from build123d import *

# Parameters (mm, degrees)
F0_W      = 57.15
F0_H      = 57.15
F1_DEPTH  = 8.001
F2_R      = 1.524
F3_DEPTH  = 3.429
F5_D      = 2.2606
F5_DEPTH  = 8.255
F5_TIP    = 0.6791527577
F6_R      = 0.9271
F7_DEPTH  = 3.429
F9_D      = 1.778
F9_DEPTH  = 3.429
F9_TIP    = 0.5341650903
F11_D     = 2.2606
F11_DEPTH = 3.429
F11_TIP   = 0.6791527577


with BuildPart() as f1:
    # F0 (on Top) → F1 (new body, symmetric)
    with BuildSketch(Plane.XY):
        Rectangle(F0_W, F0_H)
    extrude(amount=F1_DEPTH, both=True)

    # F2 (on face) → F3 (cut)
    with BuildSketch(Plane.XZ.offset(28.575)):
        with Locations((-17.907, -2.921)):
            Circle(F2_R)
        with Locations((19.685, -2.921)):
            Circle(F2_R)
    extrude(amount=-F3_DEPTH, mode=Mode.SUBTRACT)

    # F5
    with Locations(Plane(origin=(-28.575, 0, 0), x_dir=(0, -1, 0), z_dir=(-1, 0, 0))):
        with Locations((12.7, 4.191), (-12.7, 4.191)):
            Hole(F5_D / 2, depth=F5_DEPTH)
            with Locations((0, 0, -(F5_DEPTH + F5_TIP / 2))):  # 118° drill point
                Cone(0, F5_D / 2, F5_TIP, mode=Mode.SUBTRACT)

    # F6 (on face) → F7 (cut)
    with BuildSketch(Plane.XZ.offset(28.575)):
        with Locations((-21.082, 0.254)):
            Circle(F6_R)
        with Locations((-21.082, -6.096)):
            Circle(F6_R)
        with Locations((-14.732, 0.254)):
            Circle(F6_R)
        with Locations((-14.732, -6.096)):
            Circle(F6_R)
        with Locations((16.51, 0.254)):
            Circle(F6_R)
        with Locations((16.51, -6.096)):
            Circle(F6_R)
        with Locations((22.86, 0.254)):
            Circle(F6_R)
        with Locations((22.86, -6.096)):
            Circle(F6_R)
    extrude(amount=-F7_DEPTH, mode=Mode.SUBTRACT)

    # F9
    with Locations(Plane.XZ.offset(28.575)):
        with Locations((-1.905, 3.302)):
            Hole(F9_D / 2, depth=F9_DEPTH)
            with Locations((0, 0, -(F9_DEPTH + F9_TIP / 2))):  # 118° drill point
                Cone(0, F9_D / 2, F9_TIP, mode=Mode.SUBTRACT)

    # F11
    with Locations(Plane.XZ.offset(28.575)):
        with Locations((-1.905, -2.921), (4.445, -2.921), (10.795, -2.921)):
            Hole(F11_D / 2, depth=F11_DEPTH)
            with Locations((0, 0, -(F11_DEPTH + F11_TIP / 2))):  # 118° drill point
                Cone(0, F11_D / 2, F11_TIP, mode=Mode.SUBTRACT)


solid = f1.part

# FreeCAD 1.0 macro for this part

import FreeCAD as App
import Part
import Sketcher
from FreeCAD import Vector
Q = App.Units.Quantity

doc = App.newDocument("Part")
body = doc.addObject("PartDesign::Body", "Body")

# Sketch on XY plane
sketch1 = body.newObject("Sketcher::SketchObject", "Sketch")
sketch1.AttachmentSupport = (doc.getObject("XY_Plane"), [""])
sketch1.MapMode = "FlatFace"
sketch1.addGeometry(Part.LineSegment(Vector(-29, 29, 0), Vector(-29, -29, 0)), False)
sketch1.addGeometry(Part.LineSegment(Vector(-29, -29, 0), Vector(29, -29, 0)), False)
sketch1.addGeometry(Part.LineSegment(Vector(29, -29, 0), Vector(29, 29, 0)), False)
sketch1.addGeometry(Part.LineSegment(Vector(29, 29, 0), Vector(-29, 29, 0)), False)
sketch1.addConstraint(Sketcher.Constraint("Coincident", 0, 2, 1, 1))
sketch1.addConstraint(Sketcher.Constraint("Coincident", 1, 2, 2, 1))
sketch1.addConstraint(Sketcher.Constraint("Coincident", 2, 2, 3, 1))
sketch1.addConstraint(Sketcher.Constraint("Coincident", 3, 2, 0, 1))
sketch1.addConstraint(Sketcher.Constraint("Vertical", 0))
sketch1.addConstraint(Sketcher.Constraint("Horizontal", 1))
sketch1.addConstraint(Sketcher.Constraint("Vertical", 2))
sketch1.addConstraint(Sketcher.Constraint("Horizontal", 3))
sketch1.addConstraint(Sketcher.Constraint("Symmetric", 0, 2, 2, 2, -1, 1))
sketch1.addConstraint(Sketcher.Constraint("Equal", 3, 0))
sketch1.addConstraint(Sketcher.Constraint("DistanceX", 1, 1, 1, 2, Q("2.25 in")))
pad1 = body.newObject("PartDesign::Pad", "Pad")
pad1.Profile = sketch1
pad1.Length = Q("0.63 in")
pad1.Midplane = True

# Sketch on XZ plane
sketch2 = body.newObject("Sketcher::SketchObject", "Sketch001")
sketch2.AttachmentSupport = (doc.getObject("XZ_Plane"), [""])
sketch2.MapMode = "FlatFace"
sketch2.AttachmentOffset = App.Placement(Vector(0, 0, 1.125 * 25.4), App.Rotation())
sketch2.addGeometry(Part.Circle(Vector(-17.9, -2.9, 0), Vector(0, 0, 1), 1.5), False)
sketch2.addGeometry(Part.Circle(Vector(19.7, -2.9, 0), Vector(0, 0, 1), 1.5), False)
sketch2.addConstraint(Sketcher.Constraint("Equal", 0, 1))
sketch2.addConstraint(Sketcher.Constraint("Horizontal", 0, 3, 1, 3))
sketch2.addConstraint(Sketcher.Constraint("Diameter", 0, Q("0.12 in")))
sketch2.addConstraint(Sketcher.Constraint("DistanceX", 0, 3, 1, 3, Q("1.48 in")))
sketch2.addConstraint(Sketcher.Constraint("DistanceX", 0, 3, -1, 1, Q("0.705 in")))
sketch2.addConstraint(Sketcher.Constraint("DistanceY", 0, 3, -1, 1, Q("0.115 in")))
pocket1 = body.newObject("PartDesign::Pocket", "Pocket")
pocket1.Profile = sketch2
pocket1.Length = Q("0.135 in")

# Sketch on YZ plane
sketch3 = body.newObject("Sketcher::SketchObject", "Sketch002")
sketch3.AttachmentSupport = (doc.getObject("YZ_Plane"), [""])
sketch3.MapMode = "FlatFace"
sketch3.AttachmentOffset = App.Placement(Vector(0, 0, -1.125 * 25.4), App.Rotation())
sketch3.addGeometry(Part.Circle(Vector(-12.7, 4.2, 0), Vector(0, 0, 1), 1.1), False)
sketch3.addGeometry(Part.Circle(Vector(12.7, 4.2, 0), Vector(0, 0, 1), 1.1), False)
sketch3.addConstraint(Sketcher.Constraint("Equal", 0, 1))
sketch3.addConstraint(Sketcher.Constraint("Symmetric", 0, 3, 1, 3, -2))
sketch3.addConstraint(Sketcher.Constraint("Diameter", 0, Q("0.089 in")))
sketch3.addConstraint(Sketcher.Constraint("DistanceX", 0, 3, 1, 3, Q("1 in")))
sketch3.addConstraint(Sketcher.Constraint("DistanceY", -1, 1, 0, 3, Q("0.165 in")))
doc.recompute()
hole = body.newObject("PartDesign::Hole", "Hole")
hole.Profile = sketch3
hole.ThreadType = "None"
hole.Diameter = Q("0.089 in")
hole.DepthType = "Dimension"
hole.Depth = Q("0.325 in")
hole.DrillPoint = "Angled"
hole.DrillPointAngle = 118
hole.Reversed = True

# Sketch on XZ plane
sketch4 = body.newObject("Sketcher::SketchObject", "Sketch003")
sketch4.AttachmentSupport = (doc.getObject("XZ_Plane"), [""])
sketch4.MapMode = "FlatFace"
sketch4.AttachmentOffset = App.Placement(Vector(0, 0, 1.125 * 25.4), App.Rotation())
sketch4.addGeometry(Part.Circle(Vector(-21.1, 0.3, 0), Vector(0, 0, 1), 0.9), False)
sketch4.addGeometry(Part.Circle(Vector(-21.1, -6.1, 0), Vector(0, 0, 1), 0.9), False)
sketch4.addGeometry(Part.Circle(Vector(-14.7, 0.3, 0), Vector(0, 0, 1), 0.9), False)
sketch4.addGeometry(Part.Circle(Vector(-14.7, -6.1, 0), Vector(0, 0, 1), 0.9), False)
sketch4.addGeometry(Part.Circle(Vector(16.5, 0.3, 0), Vector(0, 0, 1), 0.9), False)
sketch4.addGeometry(Part.Circle(Vector(16.5, -6.1, 0), Vector(0, 0, 1), 0.9), False)
sketch4.addGeometry(Part.Circle(Vector(22.9, 0.3, 0), Vector(0, 0, 1), 0.9), False)
sketch4.addGeometry(Part.Circle(Vector(22.9, -6.1, 0), Vector(0, 0, 1), 0.9), False)
sketch4.addConstraint(Sketcher.Constraint("Equal", 0, 1))
sketch4.addConstraint(Sketcher.Constraint("Equal", 1, 2))
sketch4.addConstraint(Sketcher.Constraint("Equal", 2, 3))
sketch4.addConstraint(Sketcher.Constraint("Equal", 3, 4))
sketch4.addConstraint(Sketcher.Constraint("Equal", 4, 5))
sketch4.addConstraint(Sketcher.Constraint("Equal", 5, 6))
sketch4.addConstraint(Sketcher.Constraint("Equal", 6, 7))
sketch4.addConstraint(Sketcher.Constraint("Horizontal", 0, 3, 2, 3))
sketch4.addConstraint(Sketcher.Constraint("Horizontal", 1, 3, 3, 3))
sketch4.addConstraint(Sketcher.Constraint("Horizontal", 2, 3, 4, 3))
sketch4.addConstraint(Sketcher.Constraint("Horizontal", 3, 3, 5, 3))
sketch4.addConstraint(Sketcher.Constraint("Horizontal", 4, 3, 6, 3))
sketch4.addConstraint(Sketcher.Constraint("Horizontal", 5, 3, 7, 3))
sketch4.addConstraint(Sketcher.Constraint("Vertical", 0, 3, 1, 3))
sketch4.addConstraint(Sketcher.Constraint("Vertical", 2, 3, 3, 3))
sketch4.addConstraint(Sketcher.Constraint("Vertical", 4, 3, 5, 3))
sketch4.addConstraint(Sketcher.Constraint("Vertical", 6, 3, 7, 3))
sketch4.addConstraint(Sketcher.Constraint("Diameter", 0, Q("0.073 in")))
sketch4.addConstraint(Sketcher.Constraint("DistanceX", -1, 1, 6, 3, Q("0.9 in")))
sketch4.addConstraint(Sketcher.Constraint("DistanceX", 0, 3, -1, 1, Q("0.83 in")))
sketch4.addConstraint(Sketcher.Constraint("DistanceY", -1, 1, 0, 3, Q("0.01 in")))
sketch4.addConstraint(Sketcher.Constraint("DistanceY", 1, 3, -1, 1, Q("0.24 in")))
sketch4.addConstraint(Sketcher.Constraint("DistanceX", 2, 3, -1, 1, Q("0.58 in")))
sketch4.addConstraint(Sketcher.Constraint("DistanceX", -1, 1, 4, 3, Q("0.65 in")))
pocket2 = body.newObject("PartDesign::Pocket", "Pocket001")
pocket2.Profile = sketch4
pocket2.Length = Q("0.135 in")

# Sketch on XZ plane
sketch5 = body.newObject("Sketcher::SketchObject", "Sketch004")
sketch5.AttachmentSupport = (doc.getObject("XZ_Plane"), [""])
sketch5.MapMode = "FlatFace"
sketch5.AttachmentOffset = App.Placement(Vector(0, 0, 1.125 * 25.4), App.Rotation())
sketch5.addGeometry(Part.Circle(Vector(-1.9, 3.3, 0), Vector(0, 0, 1), 0.9), False)
sketch5.addConstraint(Sketcher.Constraint("Diameter", 0, Q("0.07 in")))
sketch5.addConstraint(Sketcher.Constraint("DistanceY", -1, 1, 0, 3, Q("0.13 in")))
sketch5.addConstraint(Sketcher.Constraint("DistanceX", 0, 3, -1, 1, Q("0.075 in")))
doc.recompute()
hole2 = body.newObject("PartDesign::Hole", "Hole001")
hole2.Profile = sketch5
hole2.ThreadType = "None"
hole2.Diameter = Q("0.07 in")
hole2.DepthType = "Dimension"
hole2.Depth = Q("0.135 in")
hole2.DrillPoint = "Angled"
hole2.DrillPointAngle = 118

# Sketch on XZ plane
sketch6 = body.newObject("Sketcher::SketchObject", "Sketch005")
sketch6.AttachmentSupport = (doc.getObject("XZ_Plane"), [""])
sketch6.MapMode = "FlatFace"
sketch6.AttachmentOffset = App.Placement(Vector(0, 0, 1.125 * 25.4), App.Rotation())
sketch6.addGeometry(Part.Circle(Vector(-1.9, -2.9, 0), Vector(0, 0, 1), 1.1), False)
sketch6.addGeometry(Part.Circle(Vector(4.4, -2.9, 0), Vector(0, 0, 1), 1.1), False)
sketch6.addGeometry(Part.Circle(Vector(10.8, -2.9, 0), Vector(0, 0, 1), 1.1), False)
sketch6.addConstraint(Sketcher.Constraint("Equal", 0, 1))
sketch6.addConstraint(Sketcher.Constraint("Equal", 1, 2))
sketch6.addConstraint(Sketcher.Constraint("Horizontal", 0, 3, 1, 3))
sketch6.addConstraint(Sketcher.Constraint("Horizontal", 1, 3, 2, 3))
sketch6.addConstraint(Sketcher.Constraint("Diameter", 0, Q("0.089 in")))
sketch6.addConstraint(Sketcher.Constraint("DistanceX", 0, 3, 2, 3, Q("0.5 in")))
sketch6.addConstraint(Sketcher.Constraint("DistanceX", 0, 3, 1, 3, Q("0.25 in")))
sketch6.addConstraint(Sketcher.Constraint("DistanceX", 0, 3, -1, 1, Q("0.075 in")))
sketch6.addConstraint(Sketcher.Constraint("DistanceY", 0, 3, -1, 1, Q("0.115 in")))
doc.recompute()
hole3 = body.newObject("PartDesign::Hole", "Hole002")
hole3.Profile = sketch6
hole3.ThreadType = "None"
hole3.Diameter = Q("0.089 in")
hole3.DepthType = "Dimension"
hole3.Depth = Q("0.135 in")
hole3.DrillPoint = "Angled"
hole3.DrillPointAngle = 118

doc.recompute()
